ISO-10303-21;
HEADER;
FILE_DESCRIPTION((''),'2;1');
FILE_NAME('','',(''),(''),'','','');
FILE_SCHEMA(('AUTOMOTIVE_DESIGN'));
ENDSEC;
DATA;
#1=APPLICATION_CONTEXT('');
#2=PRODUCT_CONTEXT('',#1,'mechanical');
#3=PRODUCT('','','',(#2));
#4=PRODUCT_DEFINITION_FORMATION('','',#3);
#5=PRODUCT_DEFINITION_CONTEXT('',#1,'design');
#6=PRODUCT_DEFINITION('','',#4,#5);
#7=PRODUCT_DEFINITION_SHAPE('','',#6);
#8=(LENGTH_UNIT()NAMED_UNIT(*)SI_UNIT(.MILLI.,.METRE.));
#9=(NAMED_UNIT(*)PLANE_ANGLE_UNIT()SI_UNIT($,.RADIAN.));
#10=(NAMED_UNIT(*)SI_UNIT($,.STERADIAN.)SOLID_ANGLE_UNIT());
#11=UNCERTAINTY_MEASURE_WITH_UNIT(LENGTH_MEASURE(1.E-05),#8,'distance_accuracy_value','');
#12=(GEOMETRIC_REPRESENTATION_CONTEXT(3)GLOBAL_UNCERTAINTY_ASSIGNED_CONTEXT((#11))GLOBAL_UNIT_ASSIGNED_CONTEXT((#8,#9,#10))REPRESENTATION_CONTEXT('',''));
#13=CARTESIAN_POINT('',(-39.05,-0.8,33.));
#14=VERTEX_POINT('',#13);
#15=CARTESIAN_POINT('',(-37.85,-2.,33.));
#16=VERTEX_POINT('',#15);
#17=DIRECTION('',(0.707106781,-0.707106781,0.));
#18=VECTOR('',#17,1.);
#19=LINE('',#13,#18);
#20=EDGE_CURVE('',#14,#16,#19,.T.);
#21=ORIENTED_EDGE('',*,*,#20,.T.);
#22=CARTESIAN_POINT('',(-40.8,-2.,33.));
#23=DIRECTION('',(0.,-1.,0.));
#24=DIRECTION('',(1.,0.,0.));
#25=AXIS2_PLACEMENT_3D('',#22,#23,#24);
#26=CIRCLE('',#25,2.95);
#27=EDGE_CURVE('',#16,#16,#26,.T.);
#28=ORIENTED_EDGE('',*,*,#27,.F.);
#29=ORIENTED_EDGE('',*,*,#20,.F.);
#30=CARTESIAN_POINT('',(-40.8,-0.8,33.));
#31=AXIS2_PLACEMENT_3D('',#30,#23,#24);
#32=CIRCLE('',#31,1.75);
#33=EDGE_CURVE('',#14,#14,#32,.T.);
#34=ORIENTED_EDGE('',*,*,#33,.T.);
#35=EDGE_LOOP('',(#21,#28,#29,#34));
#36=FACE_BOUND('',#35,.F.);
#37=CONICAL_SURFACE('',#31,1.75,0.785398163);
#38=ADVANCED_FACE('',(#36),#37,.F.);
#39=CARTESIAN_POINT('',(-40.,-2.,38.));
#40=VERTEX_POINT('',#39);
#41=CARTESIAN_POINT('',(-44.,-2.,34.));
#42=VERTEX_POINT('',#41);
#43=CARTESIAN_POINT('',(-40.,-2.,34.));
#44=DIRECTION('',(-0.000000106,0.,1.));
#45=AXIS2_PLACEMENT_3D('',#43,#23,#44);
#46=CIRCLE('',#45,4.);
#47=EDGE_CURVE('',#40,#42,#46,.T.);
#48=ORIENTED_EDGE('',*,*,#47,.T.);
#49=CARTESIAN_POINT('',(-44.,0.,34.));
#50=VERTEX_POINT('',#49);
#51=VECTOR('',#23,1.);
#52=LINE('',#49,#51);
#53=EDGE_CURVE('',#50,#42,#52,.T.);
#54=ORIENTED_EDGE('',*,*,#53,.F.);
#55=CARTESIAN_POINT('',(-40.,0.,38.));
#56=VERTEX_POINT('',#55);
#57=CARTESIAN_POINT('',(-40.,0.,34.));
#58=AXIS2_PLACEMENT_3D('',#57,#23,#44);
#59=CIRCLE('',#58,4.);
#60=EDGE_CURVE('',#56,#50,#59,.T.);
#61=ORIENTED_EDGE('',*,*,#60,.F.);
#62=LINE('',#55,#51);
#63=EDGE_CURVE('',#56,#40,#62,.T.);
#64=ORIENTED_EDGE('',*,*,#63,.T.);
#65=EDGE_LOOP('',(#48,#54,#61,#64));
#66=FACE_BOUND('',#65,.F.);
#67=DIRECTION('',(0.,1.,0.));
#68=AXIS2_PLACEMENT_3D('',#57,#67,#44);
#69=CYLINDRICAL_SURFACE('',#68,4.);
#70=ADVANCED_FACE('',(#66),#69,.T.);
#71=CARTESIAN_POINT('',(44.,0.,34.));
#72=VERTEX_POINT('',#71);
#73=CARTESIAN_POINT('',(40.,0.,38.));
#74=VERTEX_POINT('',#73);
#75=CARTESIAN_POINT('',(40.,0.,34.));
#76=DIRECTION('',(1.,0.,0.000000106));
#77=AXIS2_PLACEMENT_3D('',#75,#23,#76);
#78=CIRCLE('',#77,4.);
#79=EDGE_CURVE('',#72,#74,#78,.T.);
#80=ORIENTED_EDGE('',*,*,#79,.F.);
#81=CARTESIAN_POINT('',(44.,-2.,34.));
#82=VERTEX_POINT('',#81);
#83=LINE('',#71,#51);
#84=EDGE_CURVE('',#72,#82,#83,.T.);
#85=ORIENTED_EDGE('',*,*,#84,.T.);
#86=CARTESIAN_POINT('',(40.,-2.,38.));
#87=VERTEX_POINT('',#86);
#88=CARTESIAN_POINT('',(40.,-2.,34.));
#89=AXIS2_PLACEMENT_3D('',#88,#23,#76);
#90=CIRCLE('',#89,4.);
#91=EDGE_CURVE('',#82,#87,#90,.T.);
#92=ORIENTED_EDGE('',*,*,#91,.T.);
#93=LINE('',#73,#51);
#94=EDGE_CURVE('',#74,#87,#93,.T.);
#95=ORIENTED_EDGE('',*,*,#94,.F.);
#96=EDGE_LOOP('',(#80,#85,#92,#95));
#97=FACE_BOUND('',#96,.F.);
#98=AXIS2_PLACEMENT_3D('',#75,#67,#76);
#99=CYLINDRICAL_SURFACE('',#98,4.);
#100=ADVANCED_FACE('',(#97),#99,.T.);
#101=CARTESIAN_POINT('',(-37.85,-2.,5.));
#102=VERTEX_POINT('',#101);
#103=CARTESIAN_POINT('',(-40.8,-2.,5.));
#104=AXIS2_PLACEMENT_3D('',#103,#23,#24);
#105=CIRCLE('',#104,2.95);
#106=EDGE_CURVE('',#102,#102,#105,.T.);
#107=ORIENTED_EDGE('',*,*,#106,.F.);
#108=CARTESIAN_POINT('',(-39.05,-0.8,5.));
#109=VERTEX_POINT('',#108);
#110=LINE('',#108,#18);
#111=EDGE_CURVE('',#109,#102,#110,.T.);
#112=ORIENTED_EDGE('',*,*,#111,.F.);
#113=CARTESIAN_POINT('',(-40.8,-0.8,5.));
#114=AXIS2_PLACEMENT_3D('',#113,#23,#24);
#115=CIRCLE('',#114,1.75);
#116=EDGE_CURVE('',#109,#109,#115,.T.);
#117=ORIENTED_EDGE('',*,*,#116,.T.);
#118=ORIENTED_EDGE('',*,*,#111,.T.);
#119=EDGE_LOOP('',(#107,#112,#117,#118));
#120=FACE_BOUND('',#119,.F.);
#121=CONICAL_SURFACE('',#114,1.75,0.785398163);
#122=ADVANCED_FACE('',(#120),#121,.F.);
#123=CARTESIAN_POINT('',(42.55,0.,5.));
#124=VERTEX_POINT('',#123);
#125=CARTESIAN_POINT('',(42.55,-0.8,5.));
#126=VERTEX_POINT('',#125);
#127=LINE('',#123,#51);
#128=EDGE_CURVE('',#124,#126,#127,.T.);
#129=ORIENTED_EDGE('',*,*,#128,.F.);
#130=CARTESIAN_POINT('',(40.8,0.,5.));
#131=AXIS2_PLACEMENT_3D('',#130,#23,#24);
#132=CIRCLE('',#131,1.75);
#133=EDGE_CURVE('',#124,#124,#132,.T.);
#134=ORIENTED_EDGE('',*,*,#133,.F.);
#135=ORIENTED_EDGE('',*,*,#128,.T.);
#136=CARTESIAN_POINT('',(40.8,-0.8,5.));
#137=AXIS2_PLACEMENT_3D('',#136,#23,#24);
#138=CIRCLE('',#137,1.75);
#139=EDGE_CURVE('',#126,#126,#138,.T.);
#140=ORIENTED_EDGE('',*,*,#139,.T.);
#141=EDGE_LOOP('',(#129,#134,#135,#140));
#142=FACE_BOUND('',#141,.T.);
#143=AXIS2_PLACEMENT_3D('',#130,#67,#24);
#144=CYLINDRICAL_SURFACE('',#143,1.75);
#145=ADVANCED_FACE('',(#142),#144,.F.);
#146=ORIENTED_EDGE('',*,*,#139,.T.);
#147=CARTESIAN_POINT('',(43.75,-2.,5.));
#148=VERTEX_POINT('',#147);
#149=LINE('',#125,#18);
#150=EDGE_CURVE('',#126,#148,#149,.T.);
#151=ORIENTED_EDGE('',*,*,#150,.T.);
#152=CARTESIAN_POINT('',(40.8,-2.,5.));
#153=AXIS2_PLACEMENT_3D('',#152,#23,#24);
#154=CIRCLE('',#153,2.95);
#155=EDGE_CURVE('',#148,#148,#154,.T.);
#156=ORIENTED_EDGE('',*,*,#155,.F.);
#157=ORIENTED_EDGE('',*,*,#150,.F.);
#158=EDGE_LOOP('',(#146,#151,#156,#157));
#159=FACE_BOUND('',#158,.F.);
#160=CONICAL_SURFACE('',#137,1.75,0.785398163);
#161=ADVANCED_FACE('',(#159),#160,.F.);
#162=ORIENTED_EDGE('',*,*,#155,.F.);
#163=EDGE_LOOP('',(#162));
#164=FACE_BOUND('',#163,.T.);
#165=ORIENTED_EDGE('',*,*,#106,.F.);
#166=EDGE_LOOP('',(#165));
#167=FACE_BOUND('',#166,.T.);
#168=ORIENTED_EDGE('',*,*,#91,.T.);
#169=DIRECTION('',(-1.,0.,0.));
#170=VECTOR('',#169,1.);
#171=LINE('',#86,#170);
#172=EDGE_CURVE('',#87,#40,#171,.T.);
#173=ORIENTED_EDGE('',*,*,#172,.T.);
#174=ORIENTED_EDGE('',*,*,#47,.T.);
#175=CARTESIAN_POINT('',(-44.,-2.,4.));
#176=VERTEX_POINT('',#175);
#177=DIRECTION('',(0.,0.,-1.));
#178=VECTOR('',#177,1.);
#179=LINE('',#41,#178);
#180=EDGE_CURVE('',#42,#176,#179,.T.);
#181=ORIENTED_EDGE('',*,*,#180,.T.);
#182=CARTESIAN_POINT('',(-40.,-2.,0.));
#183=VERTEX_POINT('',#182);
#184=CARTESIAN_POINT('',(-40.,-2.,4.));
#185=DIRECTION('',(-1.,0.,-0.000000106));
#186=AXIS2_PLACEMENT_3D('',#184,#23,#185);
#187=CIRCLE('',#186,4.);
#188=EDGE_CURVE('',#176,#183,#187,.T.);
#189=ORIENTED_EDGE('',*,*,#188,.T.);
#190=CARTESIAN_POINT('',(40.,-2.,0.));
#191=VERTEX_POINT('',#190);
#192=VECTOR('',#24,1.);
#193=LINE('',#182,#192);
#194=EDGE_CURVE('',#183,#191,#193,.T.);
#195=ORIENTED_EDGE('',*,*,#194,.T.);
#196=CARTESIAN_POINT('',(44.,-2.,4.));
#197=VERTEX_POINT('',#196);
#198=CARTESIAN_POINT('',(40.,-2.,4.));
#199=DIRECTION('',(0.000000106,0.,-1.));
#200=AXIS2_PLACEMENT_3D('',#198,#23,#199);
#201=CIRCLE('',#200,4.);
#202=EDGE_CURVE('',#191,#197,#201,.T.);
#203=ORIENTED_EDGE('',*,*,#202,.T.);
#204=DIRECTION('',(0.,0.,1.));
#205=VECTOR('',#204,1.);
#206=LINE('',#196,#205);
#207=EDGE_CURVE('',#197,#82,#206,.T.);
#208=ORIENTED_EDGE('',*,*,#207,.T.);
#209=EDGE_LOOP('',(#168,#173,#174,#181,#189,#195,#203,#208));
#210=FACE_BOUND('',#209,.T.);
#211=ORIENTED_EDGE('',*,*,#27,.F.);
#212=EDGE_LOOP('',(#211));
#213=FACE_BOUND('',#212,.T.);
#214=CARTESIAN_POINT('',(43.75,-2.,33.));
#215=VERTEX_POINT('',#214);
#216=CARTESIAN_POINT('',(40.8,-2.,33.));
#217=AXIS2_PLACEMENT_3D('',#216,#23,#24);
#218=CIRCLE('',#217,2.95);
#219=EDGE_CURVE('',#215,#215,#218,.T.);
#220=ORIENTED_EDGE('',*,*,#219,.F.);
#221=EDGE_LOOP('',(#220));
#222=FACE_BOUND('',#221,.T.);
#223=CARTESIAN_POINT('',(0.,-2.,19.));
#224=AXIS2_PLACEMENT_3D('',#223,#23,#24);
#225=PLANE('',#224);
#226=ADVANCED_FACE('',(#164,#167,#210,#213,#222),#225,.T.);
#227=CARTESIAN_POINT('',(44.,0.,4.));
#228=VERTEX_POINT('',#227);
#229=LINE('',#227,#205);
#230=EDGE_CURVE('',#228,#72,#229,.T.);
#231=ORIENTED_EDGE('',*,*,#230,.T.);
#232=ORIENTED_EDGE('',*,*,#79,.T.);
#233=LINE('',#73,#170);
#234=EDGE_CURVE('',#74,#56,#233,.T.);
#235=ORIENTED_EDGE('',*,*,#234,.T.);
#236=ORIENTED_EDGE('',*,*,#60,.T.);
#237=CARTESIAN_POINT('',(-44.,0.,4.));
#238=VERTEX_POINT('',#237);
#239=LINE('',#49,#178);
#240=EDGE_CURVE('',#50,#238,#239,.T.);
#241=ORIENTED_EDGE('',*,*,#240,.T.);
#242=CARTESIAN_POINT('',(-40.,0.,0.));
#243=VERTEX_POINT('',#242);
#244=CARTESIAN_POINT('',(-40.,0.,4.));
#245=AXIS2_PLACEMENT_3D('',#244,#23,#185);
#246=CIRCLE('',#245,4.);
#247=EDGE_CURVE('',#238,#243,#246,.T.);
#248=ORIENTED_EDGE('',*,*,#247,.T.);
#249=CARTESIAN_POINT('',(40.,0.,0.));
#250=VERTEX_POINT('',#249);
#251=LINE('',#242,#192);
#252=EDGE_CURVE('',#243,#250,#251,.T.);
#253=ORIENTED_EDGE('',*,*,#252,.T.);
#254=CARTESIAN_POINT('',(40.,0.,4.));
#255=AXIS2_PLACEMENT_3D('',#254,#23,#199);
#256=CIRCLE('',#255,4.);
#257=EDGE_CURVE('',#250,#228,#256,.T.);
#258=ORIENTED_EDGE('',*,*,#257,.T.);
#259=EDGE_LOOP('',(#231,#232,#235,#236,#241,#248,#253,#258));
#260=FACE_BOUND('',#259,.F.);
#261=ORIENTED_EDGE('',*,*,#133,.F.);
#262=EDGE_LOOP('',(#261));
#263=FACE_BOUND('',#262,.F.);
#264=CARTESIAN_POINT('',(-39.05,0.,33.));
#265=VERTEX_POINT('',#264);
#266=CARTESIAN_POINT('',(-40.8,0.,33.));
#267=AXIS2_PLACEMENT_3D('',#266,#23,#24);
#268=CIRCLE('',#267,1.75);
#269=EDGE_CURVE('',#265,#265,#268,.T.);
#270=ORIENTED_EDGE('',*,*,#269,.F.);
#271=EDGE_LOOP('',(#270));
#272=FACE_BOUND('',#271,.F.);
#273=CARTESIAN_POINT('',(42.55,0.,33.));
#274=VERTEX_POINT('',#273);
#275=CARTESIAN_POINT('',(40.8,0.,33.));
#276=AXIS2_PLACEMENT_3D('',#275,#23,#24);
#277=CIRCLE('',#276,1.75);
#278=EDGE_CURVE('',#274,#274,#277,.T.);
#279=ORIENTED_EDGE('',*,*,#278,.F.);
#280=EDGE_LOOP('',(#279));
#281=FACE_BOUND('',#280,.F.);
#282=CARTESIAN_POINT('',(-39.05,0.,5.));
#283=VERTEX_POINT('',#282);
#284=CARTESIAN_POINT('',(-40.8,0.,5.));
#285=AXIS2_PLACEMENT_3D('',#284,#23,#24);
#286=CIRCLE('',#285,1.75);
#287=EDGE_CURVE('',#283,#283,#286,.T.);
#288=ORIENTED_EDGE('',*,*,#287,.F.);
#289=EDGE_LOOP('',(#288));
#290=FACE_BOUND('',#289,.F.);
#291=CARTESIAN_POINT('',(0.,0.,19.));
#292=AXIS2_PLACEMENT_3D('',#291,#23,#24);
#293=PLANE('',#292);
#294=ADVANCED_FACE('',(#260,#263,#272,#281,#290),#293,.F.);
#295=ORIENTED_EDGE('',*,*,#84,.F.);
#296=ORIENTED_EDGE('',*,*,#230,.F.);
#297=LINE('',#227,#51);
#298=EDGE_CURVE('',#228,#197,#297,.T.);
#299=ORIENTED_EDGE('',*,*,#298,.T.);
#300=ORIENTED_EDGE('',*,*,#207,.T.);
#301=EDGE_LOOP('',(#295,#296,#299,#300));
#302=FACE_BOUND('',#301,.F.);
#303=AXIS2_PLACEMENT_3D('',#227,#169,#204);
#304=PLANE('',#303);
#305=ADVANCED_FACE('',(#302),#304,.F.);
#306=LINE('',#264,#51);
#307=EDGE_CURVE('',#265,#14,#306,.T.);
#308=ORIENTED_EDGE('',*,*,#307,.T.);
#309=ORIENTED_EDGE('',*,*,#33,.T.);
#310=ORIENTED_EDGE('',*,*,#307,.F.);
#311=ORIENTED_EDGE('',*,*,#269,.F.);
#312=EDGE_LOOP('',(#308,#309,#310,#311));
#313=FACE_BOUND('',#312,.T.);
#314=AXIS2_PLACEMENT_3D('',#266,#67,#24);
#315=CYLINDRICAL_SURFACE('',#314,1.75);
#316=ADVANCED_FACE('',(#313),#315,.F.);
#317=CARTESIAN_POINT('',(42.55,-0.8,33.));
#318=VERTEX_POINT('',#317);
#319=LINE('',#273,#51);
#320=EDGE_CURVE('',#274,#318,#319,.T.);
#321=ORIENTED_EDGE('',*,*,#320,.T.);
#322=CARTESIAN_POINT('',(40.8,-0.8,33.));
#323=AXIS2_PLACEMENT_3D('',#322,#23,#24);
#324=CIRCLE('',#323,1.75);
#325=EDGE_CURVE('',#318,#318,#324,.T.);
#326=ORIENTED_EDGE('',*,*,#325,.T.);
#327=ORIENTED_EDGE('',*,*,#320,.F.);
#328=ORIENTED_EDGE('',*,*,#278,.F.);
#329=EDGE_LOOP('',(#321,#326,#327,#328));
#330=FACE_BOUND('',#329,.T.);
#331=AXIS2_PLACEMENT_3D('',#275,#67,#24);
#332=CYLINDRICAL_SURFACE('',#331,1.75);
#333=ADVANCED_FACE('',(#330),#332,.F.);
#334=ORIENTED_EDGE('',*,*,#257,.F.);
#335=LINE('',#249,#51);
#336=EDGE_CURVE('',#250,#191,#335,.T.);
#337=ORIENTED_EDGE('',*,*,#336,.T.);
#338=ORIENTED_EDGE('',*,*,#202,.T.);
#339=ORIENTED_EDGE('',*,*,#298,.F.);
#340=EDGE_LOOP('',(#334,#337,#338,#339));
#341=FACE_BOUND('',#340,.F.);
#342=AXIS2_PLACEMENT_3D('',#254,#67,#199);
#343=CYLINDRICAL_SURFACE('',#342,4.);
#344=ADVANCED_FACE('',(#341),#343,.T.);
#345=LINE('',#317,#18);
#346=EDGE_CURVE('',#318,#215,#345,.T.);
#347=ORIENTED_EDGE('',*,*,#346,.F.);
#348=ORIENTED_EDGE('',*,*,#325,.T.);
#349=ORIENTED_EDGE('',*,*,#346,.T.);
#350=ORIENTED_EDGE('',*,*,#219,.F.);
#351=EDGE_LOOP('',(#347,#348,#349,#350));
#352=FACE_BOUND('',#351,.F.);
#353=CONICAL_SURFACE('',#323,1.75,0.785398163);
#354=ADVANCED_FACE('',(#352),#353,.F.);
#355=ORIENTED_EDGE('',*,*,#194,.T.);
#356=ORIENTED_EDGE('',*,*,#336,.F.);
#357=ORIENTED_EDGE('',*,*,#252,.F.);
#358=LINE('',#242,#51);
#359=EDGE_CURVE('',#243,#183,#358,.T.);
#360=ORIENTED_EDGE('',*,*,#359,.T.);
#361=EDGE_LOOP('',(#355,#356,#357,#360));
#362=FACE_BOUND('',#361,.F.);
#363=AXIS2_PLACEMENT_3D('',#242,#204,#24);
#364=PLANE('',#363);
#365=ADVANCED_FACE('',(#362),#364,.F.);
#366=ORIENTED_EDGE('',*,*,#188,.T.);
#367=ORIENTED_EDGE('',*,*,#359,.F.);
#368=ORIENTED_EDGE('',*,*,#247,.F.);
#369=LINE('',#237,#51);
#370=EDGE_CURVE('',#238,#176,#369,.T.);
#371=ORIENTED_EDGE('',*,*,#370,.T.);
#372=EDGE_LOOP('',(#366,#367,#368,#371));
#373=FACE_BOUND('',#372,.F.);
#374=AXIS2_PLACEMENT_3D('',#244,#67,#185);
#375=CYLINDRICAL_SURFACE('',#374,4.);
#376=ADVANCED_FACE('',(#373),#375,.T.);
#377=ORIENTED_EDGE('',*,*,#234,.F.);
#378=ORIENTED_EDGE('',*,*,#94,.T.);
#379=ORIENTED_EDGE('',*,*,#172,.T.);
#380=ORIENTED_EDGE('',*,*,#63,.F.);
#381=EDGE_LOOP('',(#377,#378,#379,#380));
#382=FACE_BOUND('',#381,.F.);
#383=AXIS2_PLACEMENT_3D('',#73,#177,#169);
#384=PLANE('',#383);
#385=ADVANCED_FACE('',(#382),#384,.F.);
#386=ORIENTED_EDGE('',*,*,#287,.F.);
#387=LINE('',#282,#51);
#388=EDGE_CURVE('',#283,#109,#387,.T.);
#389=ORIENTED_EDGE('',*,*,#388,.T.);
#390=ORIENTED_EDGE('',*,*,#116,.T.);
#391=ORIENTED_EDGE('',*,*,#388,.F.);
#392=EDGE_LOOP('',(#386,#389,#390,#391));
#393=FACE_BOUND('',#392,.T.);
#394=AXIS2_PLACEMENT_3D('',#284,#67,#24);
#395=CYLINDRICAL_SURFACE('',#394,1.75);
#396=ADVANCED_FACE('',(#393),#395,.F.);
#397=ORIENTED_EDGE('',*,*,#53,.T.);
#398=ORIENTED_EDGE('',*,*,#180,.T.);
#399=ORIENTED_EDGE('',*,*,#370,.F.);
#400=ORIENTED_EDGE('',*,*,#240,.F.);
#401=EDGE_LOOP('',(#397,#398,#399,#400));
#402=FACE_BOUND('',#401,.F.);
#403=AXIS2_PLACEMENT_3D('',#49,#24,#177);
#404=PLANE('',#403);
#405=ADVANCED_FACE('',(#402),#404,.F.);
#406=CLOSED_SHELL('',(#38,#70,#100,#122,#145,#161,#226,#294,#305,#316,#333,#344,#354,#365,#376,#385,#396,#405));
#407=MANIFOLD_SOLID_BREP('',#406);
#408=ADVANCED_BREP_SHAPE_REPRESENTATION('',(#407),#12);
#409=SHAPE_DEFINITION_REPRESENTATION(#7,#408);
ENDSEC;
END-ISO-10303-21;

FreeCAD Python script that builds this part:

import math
import FreeCAD as App
import Part
import Sketcher

V = App.Vector
Q = App.Units.Quantity


def edges_at(feature, points):
    """Names of the edges that pass closest to the given points."""
    edges = feature.Shape.Edges
    near = lambda p: min(range(len(edges)), key=lambda i: edges[i].distToShape(Part.Vertex(*p))[0])
    return sorted({f"Edge{near(p) + 1}" for p in points})

doc = App.newDocument("Part")
body = doc.addObject("PartDesign::Body", "Body")

# Sketch on XZ plane
sketch1 = body.newObject("Sketcher::SketchObject", "Sketch")
sketch1.AttachmentSupport = (doc.getObject("XZ_Plane"), [""])
sketch1.MapMode = "FlatFace"
sketch1.addGeometry([
    Part.LineSegment(V(40, 38, 0), V(-40, 38, 0)),  # 0
    Part.ArcOfCircle(Part.Circle(V(-40, 34, 0), V(0, 0, 1), 4), math.radians(90), math.radians(180)),  # 1
    Part.LineSegment(V(-44, 34, 0), V(-44, 4, 0)),  # 2
    Part.ArcOfCircle(Part.Circle(V(-40, 4, 0), V(0, 0, 1), 4), math.radians(-180), math.radians(-90)),  # 3
    Part.LineSegment(V(-40, 0, 0), V(40, 0, 0)),  # 4
    Part.ArcOfCircle(Part.Circle(V(40, 4, 0), V(0, 0, 1), 4), math.radians(-90), math.radians(0)),  # 5
    Part.LineSegment(V(44, 4, 0), V(44, 34, 0)),  # 6
    Part.ArcOfCircle(Part.Circle(V(40, 34, 0), V(0, 0, 1), 4), math.radians(0), math.radians(90)),  # 7
    Part.Circle(V(-40.8, 5, 0), V(0, 0, 1), 1.8),  # 8
    Part.Circle(V(40.8, 5, 0), V(0, 0, 1), 1.8),  # 9
    Part.Circle(V(-40.8, 33, 0), V(0, 0, 1), 1.8),  # 10
    Part.Circle(V(40.8, 33, 0), V(0, 0, 1), 1.8),  # 11
], False)
sketch1.addConstraint([
    Sketcher.Constraint("Tangent", 0, 2, 1, 1),
    Sketcher.Constraint("Tangent", 1, 2, 2, 1),
    Sketcher.Constraint("Tangent", 2, 2, 3, 1),
    Sketcher.Constraint("Tangent", 3, 2, 4, 1),
    Sketcher.Constraint("Tangent", 4, 2, 5, 1),
    Sketcher.Constraint("Tangent", 5, 2, 6, 1),
    Sketcher.Constraint("Tangent", 6, 2, 7, 1),
    Sketcher.Constraint("Tangent", 7, 2, 0, 1),
    Sketcher.Constraint("Horizontal", 0),
    Sketcher.Constraint("Vertical", 2),
    Sketcher.Constraint("Horizontal", 4),
    Sketcher.Constraint("Vertical", 6),
    Sketcher.Constraint("Equal", 1, 3),
    Sketcher.Constraint("Equal", 3, 5),
    Sketcher.Constraint("Equal", 5, 7),
    Sketcher.Constraint("Equal", 8, 9),
    Sketcher.Constraint("Equal", 9, 10),
    Sketcher.Constraint("Equal", 10, 11),
    Sketcher.Constraint("Symmetric", 3, 2, 4, 2, -1, 1),
    Sketcher.Constraint("Symmetric", 8, 3, 9, 3, -2),
    Sketcher.Constraint("Symmetric", 10, 3, 11, 3, -2),
    Sketcher.Constraint("Vertical", 8, 3, 10, 3),
    Sketcher.Constraint("Radius", 1, Q("4 mm")),
    Sketcher.Constraint("Diameter", 8, Q("3.5 mm")),
    Sketcher.Constraint("DistanceX", 0, 2, 0, 1, Q("80 mm")),
    Sketcher.Constraint("DistanceY", 2, 2, 2, 1, Q("30 mm")),
    Sketcher.Constraint("DistanceY", -1, 1, 8, 3, Q("5 mm")),
    Sketcher.Constraint("DistanceY", -1, 1, 10, 3, Q("33 mm")),
    Sketcher.Constraint("DistanceX", 8, 3, -1, 1, Q("40.8 mm")),
])
pad1 = body.newObject("PartDesign::Pad", "Pad")
pad1.Profile = sketch1
pad1.Length = 2
doc.recompute()

chamfer = body.newObject("PartDesign::Chamfer", "Chamfer")
chamfer.Base = (pad1, edges_at(pad1, [
    (-42.55, -2, 33),
    (-42.55, -2, 5),
    (39.05, -2, 5),
    (39.05, -2, 33),
]))
chamfer.Size = 1.2

doc.recompute()
